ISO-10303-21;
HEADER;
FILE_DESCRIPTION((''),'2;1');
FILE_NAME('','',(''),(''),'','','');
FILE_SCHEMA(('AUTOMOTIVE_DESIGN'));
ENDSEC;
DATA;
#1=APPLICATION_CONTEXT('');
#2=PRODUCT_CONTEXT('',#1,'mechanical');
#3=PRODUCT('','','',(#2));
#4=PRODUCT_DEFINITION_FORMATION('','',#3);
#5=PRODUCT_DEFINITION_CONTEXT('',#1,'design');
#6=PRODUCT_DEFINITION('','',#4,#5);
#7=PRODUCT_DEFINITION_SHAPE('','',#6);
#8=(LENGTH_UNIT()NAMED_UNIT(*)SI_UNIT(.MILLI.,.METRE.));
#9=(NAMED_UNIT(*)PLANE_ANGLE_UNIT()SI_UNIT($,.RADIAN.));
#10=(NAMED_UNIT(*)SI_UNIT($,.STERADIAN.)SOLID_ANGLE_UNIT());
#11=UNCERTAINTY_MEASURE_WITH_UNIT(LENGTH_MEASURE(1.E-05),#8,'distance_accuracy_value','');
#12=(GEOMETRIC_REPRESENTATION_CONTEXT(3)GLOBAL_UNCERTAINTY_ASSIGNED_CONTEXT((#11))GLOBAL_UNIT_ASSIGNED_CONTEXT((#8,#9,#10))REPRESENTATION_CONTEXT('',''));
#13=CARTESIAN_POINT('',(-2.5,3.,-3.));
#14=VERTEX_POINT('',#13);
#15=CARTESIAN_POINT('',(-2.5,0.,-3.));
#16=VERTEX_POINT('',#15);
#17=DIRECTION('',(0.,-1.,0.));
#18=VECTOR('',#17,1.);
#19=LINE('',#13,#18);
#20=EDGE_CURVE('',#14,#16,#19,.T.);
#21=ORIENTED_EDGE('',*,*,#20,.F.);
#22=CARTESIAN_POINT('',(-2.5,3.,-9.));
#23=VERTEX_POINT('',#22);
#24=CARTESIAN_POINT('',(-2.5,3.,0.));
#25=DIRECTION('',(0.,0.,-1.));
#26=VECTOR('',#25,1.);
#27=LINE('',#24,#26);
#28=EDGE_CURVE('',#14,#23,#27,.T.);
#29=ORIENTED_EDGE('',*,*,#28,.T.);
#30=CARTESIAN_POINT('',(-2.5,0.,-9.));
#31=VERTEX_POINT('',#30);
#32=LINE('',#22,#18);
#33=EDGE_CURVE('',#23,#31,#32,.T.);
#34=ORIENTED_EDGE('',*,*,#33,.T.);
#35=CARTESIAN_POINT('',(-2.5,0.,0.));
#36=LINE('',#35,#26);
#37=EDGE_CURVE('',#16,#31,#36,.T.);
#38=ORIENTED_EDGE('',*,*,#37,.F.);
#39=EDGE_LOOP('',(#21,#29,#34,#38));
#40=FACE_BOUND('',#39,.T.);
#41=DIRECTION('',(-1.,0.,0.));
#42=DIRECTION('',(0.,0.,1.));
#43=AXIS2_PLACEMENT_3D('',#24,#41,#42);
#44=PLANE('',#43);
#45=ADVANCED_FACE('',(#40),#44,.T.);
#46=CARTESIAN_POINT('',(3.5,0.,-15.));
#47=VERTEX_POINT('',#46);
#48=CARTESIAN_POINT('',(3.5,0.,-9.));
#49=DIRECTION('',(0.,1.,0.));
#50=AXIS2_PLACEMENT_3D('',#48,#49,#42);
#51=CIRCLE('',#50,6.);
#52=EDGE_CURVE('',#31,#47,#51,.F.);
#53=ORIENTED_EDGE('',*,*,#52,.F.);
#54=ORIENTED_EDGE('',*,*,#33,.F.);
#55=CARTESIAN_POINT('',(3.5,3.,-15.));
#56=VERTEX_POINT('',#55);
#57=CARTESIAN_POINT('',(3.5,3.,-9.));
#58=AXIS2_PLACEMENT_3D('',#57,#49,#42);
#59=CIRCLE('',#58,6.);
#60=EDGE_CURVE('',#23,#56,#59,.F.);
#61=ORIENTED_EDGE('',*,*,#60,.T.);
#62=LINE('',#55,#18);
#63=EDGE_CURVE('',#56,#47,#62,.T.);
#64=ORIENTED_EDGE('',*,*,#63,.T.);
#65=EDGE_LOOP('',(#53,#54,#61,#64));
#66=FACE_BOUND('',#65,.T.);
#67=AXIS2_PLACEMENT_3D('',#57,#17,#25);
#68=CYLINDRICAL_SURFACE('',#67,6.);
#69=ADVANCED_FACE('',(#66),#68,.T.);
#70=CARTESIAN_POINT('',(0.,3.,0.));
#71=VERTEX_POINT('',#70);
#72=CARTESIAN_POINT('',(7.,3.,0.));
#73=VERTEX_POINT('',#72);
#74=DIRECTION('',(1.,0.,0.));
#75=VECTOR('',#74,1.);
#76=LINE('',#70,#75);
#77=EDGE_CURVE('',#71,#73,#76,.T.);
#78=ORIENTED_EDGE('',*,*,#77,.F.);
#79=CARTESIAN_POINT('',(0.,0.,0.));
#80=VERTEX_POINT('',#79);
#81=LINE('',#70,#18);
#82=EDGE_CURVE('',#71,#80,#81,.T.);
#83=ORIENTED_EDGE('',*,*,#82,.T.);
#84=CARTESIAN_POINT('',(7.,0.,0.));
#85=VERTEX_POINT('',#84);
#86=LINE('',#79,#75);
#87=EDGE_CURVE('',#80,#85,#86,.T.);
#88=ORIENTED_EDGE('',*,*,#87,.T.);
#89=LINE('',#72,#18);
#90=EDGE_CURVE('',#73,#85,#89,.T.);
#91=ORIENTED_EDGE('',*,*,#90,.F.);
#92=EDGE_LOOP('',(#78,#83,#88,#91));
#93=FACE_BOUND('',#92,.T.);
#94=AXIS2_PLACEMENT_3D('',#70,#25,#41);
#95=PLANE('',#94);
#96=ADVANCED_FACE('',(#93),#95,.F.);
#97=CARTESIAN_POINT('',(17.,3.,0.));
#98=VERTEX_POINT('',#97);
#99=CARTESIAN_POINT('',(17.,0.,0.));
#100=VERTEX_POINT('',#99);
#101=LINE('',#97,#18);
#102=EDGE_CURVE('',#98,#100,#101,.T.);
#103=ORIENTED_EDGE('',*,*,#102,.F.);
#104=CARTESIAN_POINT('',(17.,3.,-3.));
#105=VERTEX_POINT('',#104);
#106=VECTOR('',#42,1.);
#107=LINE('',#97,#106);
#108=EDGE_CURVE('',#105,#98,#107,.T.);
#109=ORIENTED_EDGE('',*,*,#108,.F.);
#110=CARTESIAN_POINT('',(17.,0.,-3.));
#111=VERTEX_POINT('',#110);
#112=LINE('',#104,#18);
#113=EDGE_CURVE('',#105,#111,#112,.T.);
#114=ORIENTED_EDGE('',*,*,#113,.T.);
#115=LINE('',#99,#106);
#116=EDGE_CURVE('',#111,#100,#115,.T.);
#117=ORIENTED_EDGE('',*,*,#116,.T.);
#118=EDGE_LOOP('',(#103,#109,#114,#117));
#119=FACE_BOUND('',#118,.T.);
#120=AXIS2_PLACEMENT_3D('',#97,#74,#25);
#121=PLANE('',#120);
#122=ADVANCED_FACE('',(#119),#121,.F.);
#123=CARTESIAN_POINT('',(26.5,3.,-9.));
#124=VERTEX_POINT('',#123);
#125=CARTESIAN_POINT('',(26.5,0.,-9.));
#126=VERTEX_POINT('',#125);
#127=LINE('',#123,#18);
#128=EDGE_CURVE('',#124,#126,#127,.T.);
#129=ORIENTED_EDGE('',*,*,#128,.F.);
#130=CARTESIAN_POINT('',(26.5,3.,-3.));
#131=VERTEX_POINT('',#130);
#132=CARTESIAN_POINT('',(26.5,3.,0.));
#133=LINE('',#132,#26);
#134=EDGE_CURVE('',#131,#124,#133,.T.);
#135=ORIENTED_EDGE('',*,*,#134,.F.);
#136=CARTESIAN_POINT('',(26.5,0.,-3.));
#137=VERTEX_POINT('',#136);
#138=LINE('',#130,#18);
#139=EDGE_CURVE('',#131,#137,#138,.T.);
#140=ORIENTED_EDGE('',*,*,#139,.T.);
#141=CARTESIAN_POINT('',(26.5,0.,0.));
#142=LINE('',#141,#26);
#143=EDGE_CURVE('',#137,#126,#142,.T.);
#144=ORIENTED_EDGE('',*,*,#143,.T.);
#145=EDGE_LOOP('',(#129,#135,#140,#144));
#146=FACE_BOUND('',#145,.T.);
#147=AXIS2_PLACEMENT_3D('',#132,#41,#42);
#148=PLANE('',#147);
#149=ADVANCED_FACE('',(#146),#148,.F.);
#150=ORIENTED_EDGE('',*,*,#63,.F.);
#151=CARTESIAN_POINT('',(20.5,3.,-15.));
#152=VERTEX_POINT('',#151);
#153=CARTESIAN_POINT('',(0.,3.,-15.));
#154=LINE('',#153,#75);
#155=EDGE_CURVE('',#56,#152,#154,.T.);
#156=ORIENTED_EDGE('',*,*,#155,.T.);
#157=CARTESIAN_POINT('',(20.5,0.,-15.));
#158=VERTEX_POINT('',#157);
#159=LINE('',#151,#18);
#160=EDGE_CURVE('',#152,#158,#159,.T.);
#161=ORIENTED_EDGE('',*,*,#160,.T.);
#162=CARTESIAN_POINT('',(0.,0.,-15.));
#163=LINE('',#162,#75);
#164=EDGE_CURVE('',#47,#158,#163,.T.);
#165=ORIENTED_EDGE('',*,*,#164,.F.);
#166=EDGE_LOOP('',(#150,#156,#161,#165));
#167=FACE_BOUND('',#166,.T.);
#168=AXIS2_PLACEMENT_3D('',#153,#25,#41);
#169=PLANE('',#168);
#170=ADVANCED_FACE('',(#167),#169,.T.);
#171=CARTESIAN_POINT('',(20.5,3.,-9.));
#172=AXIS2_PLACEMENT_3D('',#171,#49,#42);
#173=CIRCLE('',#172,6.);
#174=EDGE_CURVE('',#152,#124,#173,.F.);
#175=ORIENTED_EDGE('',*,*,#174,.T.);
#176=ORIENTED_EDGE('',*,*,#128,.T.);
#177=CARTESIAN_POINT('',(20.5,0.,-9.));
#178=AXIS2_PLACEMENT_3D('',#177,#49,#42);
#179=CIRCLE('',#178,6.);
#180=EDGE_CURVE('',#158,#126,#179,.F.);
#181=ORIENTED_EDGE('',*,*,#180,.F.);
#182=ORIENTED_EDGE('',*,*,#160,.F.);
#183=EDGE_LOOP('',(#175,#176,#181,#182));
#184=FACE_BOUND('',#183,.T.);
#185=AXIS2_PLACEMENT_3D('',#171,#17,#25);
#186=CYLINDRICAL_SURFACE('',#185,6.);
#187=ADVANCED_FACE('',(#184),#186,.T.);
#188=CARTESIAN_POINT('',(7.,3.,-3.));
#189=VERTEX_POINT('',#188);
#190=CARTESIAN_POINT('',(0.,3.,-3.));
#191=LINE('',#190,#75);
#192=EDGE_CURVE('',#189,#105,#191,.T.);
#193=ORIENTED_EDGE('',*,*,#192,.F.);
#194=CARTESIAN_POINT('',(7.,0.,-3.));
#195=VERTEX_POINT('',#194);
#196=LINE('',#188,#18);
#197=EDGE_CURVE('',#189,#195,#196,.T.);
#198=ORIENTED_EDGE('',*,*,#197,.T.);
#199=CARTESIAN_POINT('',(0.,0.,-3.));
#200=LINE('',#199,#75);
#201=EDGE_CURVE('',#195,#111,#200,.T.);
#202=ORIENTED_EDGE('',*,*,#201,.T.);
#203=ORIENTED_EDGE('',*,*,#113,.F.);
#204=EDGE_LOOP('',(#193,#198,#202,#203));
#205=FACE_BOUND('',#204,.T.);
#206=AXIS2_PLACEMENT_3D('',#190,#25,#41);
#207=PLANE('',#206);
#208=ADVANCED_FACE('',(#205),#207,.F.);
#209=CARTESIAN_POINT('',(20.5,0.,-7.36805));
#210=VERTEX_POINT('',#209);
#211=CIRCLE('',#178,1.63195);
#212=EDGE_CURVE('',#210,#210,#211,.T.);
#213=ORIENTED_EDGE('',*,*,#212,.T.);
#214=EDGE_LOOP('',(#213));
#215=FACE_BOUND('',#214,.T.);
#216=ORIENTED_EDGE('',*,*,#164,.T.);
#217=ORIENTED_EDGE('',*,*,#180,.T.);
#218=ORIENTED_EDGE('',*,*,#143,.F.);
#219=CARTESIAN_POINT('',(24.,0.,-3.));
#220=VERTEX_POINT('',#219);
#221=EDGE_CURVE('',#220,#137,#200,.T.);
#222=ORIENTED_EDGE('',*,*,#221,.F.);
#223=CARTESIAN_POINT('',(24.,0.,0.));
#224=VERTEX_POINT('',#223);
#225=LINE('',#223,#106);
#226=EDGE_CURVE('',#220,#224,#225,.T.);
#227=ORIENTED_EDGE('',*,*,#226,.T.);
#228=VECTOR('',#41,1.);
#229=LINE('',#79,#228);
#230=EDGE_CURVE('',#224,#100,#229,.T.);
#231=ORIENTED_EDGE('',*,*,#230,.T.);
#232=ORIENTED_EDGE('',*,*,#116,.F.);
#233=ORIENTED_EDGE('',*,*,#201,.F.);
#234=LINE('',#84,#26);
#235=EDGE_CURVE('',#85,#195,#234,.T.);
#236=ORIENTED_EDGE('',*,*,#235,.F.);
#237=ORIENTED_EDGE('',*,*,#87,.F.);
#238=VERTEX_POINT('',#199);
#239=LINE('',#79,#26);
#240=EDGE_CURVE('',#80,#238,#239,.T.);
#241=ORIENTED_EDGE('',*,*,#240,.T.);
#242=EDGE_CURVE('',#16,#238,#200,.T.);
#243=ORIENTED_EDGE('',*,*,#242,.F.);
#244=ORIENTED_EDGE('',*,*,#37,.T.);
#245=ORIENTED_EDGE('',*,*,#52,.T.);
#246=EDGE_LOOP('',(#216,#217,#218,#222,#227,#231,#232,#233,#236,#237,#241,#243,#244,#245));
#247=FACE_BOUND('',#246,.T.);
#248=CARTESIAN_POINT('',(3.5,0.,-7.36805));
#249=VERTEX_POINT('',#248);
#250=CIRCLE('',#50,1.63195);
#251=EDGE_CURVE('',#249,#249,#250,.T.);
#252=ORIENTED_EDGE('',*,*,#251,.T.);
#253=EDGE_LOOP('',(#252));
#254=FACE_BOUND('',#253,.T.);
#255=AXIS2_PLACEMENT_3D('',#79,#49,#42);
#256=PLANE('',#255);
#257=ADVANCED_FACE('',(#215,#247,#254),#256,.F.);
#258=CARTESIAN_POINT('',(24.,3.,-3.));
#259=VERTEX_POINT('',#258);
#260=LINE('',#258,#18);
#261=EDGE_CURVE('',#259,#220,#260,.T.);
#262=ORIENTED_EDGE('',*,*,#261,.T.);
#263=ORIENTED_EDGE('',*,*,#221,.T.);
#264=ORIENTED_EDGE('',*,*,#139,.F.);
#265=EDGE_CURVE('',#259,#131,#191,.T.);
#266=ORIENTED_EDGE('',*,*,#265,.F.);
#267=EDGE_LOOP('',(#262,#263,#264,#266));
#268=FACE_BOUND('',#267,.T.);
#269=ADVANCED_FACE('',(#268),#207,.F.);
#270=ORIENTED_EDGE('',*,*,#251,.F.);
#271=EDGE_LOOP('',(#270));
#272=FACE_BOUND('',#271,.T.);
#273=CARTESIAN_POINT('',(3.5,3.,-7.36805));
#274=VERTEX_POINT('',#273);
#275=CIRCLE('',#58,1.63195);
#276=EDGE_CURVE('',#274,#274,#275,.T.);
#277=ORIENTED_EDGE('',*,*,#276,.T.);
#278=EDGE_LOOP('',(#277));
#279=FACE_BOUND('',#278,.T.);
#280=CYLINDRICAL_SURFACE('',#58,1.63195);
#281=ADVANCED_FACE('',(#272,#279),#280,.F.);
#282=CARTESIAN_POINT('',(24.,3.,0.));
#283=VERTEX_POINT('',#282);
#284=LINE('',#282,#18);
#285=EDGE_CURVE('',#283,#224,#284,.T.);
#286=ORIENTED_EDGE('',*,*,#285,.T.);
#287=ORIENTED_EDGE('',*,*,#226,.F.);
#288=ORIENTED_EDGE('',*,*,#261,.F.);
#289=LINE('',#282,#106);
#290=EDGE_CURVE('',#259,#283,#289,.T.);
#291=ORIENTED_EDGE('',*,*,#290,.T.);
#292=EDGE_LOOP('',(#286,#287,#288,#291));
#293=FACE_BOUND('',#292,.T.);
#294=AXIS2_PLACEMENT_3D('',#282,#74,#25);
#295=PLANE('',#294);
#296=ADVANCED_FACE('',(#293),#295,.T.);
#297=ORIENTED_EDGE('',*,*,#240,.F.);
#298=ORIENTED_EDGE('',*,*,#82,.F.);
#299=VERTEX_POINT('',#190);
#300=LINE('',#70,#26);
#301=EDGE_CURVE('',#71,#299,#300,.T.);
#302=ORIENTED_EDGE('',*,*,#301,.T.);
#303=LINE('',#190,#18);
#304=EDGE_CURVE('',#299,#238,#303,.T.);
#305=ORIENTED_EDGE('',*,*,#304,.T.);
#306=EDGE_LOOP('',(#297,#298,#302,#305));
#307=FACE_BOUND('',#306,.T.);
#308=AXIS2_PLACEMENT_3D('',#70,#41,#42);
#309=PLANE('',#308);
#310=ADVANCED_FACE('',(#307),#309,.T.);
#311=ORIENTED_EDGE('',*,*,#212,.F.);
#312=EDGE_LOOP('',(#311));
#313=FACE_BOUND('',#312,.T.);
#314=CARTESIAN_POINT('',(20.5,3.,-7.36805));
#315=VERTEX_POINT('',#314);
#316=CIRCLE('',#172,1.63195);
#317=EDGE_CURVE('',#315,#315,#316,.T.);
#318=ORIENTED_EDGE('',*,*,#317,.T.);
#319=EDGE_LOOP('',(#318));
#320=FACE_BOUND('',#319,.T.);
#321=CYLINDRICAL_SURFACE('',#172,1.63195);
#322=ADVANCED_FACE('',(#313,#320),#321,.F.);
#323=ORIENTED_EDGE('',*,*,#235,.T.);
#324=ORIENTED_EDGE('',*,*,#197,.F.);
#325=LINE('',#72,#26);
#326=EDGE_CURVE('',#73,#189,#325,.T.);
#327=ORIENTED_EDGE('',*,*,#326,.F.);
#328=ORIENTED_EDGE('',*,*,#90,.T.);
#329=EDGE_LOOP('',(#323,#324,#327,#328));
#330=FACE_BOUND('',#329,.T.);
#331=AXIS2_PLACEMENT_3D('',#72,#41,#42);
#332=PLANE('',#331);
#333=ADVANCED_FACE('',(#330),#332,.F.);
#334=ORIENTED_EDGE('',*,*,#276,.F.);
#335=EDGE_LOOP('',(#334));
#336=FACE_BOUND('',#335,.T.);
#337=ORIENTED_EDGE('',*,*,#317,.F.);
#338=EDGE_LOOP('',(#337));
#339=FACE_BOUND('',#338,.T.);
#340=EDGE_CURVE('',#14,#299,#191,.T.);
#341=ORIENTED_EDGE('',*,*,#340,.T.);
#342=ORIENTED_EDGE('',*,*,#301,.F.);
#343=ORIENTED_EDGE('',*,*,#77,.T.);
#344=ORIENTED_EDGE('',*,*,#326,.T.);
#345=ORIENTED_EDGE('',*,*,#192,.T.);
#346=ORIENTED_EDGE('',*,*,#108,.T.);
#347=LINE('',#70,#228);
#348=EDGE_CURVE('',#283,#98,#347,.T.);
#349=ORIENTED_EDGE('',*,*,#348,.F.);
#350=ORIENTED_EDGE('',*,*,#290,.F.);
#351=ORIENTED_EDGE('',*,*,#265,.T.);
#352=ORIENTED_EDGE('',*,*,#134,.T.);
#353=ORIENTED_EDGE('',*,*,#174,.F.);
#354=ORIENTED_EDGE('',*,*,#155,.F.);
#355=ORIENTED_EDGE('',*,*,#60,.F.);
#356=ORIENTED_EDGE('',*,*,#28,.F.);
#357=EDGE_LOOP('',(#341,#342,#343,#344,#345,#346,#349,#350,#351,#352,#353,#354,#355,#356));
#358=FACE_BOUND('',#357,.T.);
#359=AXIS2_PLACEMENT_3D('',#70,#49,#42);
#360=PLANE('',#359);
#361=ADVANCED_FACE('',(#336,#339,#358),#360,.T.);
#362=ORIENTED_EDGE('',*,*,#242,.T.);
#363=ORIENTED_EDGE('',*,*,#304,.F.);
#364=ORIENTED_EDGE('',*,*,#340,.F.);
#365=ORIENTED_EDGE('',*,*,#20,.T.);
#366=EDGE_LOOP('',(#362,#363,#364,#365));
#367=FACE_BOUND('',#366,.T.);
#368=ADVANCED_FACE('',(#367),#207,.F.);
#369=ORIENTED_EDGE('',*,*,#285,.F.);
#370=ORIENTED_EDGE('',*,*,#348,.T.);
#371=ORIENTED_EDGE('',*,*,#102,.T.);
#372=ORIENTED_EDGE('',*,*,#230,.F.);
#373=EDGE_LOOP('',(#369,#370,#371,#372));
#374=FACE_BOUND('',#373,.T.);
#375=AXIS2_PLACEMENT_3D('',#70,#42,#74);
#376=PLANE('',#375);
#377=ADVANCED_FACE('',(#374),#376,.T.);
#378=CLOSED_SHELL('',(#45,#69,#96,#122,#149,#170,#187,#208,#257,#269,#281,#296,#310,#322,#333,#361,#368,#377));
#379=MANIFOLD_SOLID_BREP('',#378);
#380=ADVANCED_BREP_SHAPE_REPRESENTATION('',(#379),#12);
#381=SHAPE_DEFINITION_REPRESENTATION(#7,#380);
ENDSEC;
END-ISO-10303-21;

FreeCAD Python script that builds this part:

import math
import FreeCAD as App
import Part
import Sketcher

V = App.Vector

doc = App.newDocument("Part")
body = doc.addObject("PartDesign::Body", "Body")

sketch1 = body.newObject("Sketcher::SketchObject", "Sketch")
sketch1.AttachmentSupport = (doc.getObject("XZ_Plane"), [""])
sketch1.MapMode = "FlatFace"
sketch1.addGeometry([
    Part.LineSegment(V(0, -3, 0), V(0, 0, 0)),
    Part.LineSegment(V(0, 0, 0), V(7, 0, 0)),
    Part.LineSegment(V(7, 0, 0), V(7, -3, 0)),
    Part.LineSegment(V(7, -3, 0), V(17, -3, 0)),
    Part.LineSegment(V(17, -3, 0), V(17, 0, 0)),
    Part.LineSegment(V(17, 0, 0), V(24, 0, 0)),
    Part.LineSegment(V(24, 0, 0), V(24, -3, 0)),
    Part.LineSegment(V(24, -3, 0), V(26.5, -3, 0)),
    Part.LineSegment(V(26.5, -3, 0), V(26.5, -9, 0)),
    Part.ArcOfCircle(Part.Circle(V(20.5, -9, 0), V(0, 0, 1), 6), math.radians(-90), math.radians(0)),
    Part.LineSegment(V(20.5, -15, 0), V(3.5, -15, 0)),
    Part.ArcOfCircle(Part.Circle(V(3.5, -9, 0), V(0, 0, 1), 6), math.radians(180), math.radians(270)),
    Part.LineSegment(V(-2.5, -9, 0), V(-2.5, -3, 0)),
    Part.LineSegment(V(-2.5, -3, 0), V(0, -3, 0)),
], False)
sketch1.addConstraint([
    Sketcher.Constraint("Coincident", 0, 2, 1, 1),
    Sketcher.Constraint("Coincident", 1, 2, 2, 1),
    Sketcher.Constraint("Coincident", 2, 2, 3, 1),
    Sketcher.Constraint("Coincident", 3, 2, 4, 1),
    Sketcher.Constraint("Coincident", 4, 2, 5, 1),
    Sketcher.Constraint("Coincident", 5, 2, 6, 1),
    Sketcher.Constraint("Coincident", 6, 2, 7, 1),
    Sketcher.Constraint("Coincident", 7, 2, 8, 1),
    Sketcher.Constraint("Tangent", 8, 2, 9, 2),
    Sketcher.Constraint("Tangent", 9, 1, 10, 1),
    Sketcher.Constraint("Tangent", 10, 2, 11, 2),
    Sketcher.Constraint("Tangent", 11, 1, 12, 1),
    Sketcher.Constraint("Coincident", 12, 2, 13, 1),
    Sketcher.Constraint("Coincident", 13, 2, 0, 1),
    Sketcher.Constraint("Vertical", 0),
    Sketcher.Constraint("Horizontal", 1),
    Sketcher.Constraint("Vertical", 2),
    Sketcher.Constraint("Horizontal", 3),
    Sketcher.Constraint("Vertical", 4),
    Sketcher.Constraint("Horizontal", 5),
    Sketcher.Constraint("Vertical", 6),
    Sketcher.Constraint("Horizontal", 7),
    Sketcher.Constraint("Vertical", 8),
    Sketcher.Constraint("Horizontal", 10),
    Sketcher.Constraint("Vertical", 12),
    Sketcher.Constraint("Horizontal", 13),
    Sketcher.Constraint("Coincident", 0, 2, -1, 1),
    Sketcher.Constraint("Equal", 9, 11),
    Sketcher.Constraint("PointOnObject", 4, 2, -1),
    Sketcher.Constraint("Horizontal", 3, 2, 6, 2),
    Sketcher.Constraint("Horizontal", 7, 2, 12, 2),
    Sketcher.Constraint("Equal", 1, 5),
    Sketcher.Constraint("Equal", 7, 13),
    Sketcher.Constraint("Radius", 9, 6.0),
    Sketcher.Constraint("DistanceX", 1, 1, 1, 2, 7.0),
    Sketcher.Constraint("DistanceX", 3, 1, 3, 2, 10.0),
    Sketcher.Constraint("DistanceX", 10, 2, 10, 1, 17.0),
    Sketcher.Constraint("DistanceY", 0, 1, 0, 2, 3.0),
    Sketcher.Constraint("DistanceY", 8, 2, 8, 1, 6.0),
])
pad1 = body.newObject("PartDesign::Pad", "Pad")
pad1.Profile = sketch1
pad1.Length = 3
pad1.Reversed = True

sketch2 = body.newObject("Sketcher::SketchObject", "Sketch001")
sketch2.AttachmentSupport = (doc.getObject("XZ_Plane"), [""])
sketch2.MapMode = "FlatFace"
sketch2.AttachmentOffset = App.Placement(V(0, 0, -3), App.Rotation())
sketch2.addGeometry([
    Part.Circle(V(3.5, -9, 0), V(0, 0, 1), 1.63195),
    Part.Circle(V(20.5, -9, 0), V(0, 0, 1), 1.63195),
], False)
sketch2.addConstraint([
    Sketcher.Constraint("Equal", 0, 1),
    Sketcher.Constraint("Horizontal", 0, 3, 1, 3),
    Sketcher.Constraint("DistanceY", 0, 3, -1, 1, 9.0),
    Sketcher.Constraint("DistanceX", 0, 3, 1, 3, 17.0),
    Sketcher.Constraint("Diameter", 0, 3.2639),
    Sketcher.Constraint("DistanceX", -1, 1, 0, 3, 3.5),
])
doc.recompute()
hole = body.newObject("PartDesign::Hole", "Hole")
hole.Profile = sketch2
hole.ThreadType = "None"
hole.Diameter = 3.2639
hole.DepthType = "ThroughAll"
hole.Reversed = True

doc.recompute()
